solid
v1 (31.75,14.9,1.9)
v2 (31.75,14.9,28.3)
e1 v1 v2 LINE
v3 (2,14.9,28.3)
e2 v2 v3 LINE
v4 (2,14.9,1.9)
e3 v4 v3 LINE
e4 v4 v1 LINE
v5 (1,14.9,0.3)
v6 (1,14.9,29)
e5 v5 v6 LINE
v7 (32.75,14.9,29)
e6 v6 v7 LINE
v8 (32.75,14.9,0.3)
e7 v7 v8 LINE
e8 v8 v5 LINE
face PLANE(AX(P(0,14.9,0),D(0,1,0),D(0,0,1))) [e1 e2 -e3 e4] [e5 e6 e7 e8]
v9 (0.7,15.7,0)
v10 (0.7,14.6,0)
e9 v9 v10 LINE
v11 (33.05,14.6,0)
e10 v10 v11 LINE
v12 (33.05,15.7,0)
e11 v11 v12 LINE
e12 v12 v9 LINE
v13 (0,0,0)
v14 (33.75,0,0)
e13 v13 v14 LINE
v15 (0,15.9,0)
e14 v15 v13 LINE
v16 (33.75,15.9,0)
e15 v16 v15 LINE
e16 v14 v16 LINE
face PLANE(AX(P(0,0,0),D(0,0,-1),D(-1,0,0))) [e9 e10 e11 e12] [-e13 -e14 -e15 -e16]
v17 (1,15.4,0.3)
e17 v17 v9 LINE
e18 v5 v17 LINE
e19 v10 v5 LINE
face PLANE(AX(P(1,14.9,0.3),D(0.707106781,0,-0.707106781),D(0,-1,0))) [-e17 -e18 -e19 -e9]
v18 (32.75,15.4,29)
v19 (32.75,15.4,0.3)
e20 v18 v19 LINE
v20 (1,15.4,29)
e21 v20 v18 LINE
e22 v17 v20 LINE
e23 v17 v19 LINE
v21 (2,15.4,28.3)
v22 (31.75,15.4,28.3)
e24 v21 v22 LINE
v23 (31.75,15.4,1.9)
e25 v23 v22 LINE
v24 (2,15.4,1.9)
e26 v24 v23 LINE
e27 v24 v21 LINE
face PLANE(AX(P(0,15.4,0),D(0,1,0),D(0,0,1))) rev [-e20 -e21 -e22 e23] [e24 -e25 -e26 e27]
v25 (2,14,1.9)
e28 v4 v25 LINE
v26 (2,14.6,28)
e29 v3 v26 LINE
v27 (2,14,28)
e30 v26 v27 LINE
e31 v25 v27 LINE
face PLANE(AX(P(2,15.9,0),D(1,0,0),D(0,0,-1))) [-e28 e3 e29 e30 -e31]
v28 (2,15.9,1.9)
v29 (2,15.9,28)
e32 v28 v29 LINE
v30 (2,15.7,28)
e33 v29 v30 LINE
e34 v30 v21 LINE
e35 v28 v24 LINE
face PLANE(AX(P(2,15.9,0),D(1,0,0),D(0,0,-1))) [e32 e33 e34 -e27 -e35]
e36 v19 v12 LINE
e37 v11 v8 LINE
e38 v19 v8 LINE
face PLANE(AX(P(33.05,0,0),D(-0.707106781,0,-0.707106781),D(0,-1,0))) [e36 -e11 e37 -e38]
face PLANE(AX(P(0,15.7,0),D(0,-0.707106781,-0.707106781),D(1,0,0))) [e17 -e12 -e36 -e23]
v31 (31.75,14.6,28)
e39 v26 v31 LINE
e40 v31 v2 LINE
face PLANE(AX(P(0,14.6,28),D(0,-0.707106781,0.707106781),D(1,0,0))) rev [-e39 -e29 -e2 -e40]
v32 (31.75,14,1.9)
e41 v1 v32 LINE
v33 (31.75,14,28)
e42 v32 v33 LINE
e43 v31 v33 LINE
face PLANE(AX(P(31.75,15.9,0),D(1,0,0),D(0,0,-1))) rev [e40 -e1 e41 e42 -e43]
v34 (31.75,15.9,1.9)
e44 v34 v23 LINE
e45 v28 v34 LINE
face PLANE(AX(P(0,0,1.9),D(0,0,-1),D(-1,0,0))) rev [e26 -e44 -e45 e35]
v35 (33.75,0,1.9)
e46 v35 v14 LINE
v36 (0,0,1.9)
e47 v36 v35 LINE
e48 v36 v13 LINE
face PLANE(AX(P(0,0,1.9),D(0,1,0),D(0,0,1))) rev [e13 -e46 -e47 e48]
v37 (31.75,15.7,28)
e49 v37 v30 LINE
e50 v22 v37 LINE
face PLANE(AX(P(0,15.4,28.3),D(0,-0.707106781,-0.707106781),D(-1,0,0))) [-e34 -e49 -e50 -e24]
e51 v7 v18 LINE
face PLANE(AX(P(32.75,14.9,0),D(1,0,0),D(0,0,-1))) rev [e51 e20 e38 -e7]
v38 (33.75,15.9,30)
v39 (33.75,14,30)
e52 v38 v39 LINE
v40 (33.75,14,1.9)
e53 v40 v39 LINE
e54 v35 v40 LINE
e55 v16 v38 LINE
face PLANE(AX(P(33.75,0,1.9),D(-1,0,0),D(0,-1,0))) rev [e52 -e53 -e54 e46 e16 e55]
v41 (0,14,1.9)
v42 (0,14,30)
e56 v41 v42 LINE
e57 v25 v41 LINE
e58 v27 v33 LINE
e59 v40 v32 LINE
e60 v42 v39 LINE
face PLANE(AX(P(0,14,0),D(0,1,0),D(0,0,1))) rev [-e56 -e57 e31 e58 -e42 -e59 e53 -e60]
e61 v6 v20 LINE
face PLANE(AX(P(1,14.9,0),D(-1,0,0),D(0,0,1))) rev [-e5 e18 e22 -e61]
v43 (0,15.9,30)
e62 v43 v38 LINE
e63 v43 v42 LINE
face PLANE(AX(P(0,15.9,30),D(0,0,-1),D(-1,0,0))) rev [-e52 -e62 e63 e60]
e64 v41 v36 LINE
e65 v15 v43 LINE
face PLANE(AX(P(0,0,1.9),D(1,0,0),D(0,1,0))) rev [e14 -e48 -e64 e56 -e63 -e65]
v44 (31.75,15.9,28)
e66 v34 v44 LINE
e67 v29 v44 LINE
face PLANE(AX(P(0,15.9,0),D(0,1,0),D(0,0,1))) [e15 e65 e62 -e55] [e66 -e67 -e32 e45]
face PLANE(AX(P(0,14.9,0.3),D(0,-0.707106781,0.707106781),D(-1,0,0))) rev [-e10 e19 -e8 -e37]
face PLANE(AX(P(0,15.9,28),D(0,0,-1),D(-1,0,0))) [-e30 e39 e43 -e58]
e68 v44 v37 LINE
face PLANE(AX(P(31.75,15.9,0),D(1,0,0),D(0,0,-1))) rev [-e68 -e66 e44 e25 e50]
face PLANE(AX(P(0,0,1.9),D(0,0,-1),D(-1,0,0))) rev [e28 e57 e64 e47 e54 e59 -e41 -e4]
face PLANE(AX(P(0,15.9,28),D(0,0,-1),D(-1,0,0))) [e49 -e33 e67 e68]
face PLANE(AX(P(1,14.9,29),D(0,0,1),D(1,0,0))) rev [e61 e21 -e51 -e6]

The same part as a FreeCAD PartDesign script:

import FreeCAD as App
import Part
import Sketcher
from FreeCAD import Vector
Q = App.Units.Quantity


def edges_at(feature, points):
    """Names of the edges that pass closest to the given points."""
    edges = feature.Shape.Edges
    near = lambda p: min(range(len(edges)), key=lambda i: edges[i].distToShape(Part.Vertex(*p))[0])
    return sorted({f"Edge{near(p) + 1}" for p in points})

doc = App.newDocument("Part")
body = doc.addObject("PartDesign::Body", "Body")

# Sketch on XY plane
sketch1 = doc.addObject("Sketcher::SketchObject", "Sketch")
body.addObject(sketch1)
sketch1.AttachmentSupport = (doc.XY_Plane, [""])
sketch1.MapMode = "FlatFace"
sketch1.addGeometry(Part.LineSegment(Vector(0, 14, 0), Vector(0, 0, 0)), False)
sketch1.addGeometry(Part.LineSegment(Vector(0, 0, 0), Vector(34, 0, 0)), False)
sketch1.addGeometry(Part.LineSegment(Vector(34, 0, 0), Vector(34, 14, 0)), False)
sketch1.addGeometry(Part.LineSegment(Vector(34, 14, 0), Vector(0, 14, 0)), False)
sketch1.addConstraint(Sketcher.Constraint("Coincident", 0, 2, 1, 1))
sketch1.addConstraint(Sketcher.Constraint("Coincident", 1, 2, 2, 1))
sketch1.addConstraint(Sketcher.Constraint("Coincident", 2, 2, 3, 1))
sketch1.addConstraint(Sketcher.Constraint("Coincident", 3, 2, 0, 1))
sketch1.addConstraint(Sketcher.Constraint("Vertical", 0))
sketch1.addConstraint(Sketcher.Constraint("Horizontal", 1))
sketch1.addConstraint(Sketcher.Constraint("Vertical", 2))
sketch1.addConstraint(Sketcher.Constraint("Horizontal", 3))
sketch1.addConstraint(Sketcher.Constraint("Coincident", 0, 2, -1, 1))
sketch1.addConstraint(Sketcher.Constraint("DistanceY", 0, 2, 0, 1, Q("14 mm")))
sketch1.addConstraint(Sketcher.Constraint("DistanceX", 1, 1, 1, 2, Q("33.75 mm")))
pad1 = doc.addObject("PartDesign::Pad", "Pad")
body.addObject(pad1)
pad1.Profile = sketch1
pad1.Length = 1.9

# Sketch on XZ plane
sketch2 = doc.addObject("Sketcher::SketchObject", "Sketch001")
body.addObject(sketch2)
sketch2.AttachmentSupport = (doc.XZ_Plane, [""])
sketch2.MapMode = "FlatFace"
sketch2.AttachmentOffset = App.Placement(Vector(0, 0, -14), App.Rotation())
sketch2.addGeometry(Part.LineSegment(Vector(0, 0, 0), Vector(0, 30, 0)), False)
sketch2.addGeometry(Part.LineSegment(Vector(0, 30, 0), Vector(34, 30, 0)), False)
sketch2.addGeometry(Part.LineSegment(Vector(34, 30, 0), Vector(34, 0, 0)), False)
sketch2.addGeometry(Part.LineSegment(Vector(34, 0, 0), Vector(0, 0, 0)), False)
sketch2.addGeometry(Part.LineSegment(Vector(32, 28, 0), Vector(2, 28, 0)), False)
sketch2.addGeometry(Part.LineSegment(Vector(2, 28, 0), Vector(2, 2, 0)), False)
sketch2.addGeometry(Part.LineSegment(Vector(2, 2, 0), Vector(32, 2, 0)), False)
sketch2.addGeometry(Part.LineSegment(Vector(32, 2, 0), Vector(32, 28, 0)), False)
sketch2.addConstraint(Sketcher.Constraint("Coincident", 0, 2, 1, 1))
sketch2.addConstraint(Sketcher.Constraint("Coincident", 1, 2, 2, 1))
sketch2.addConstraint(Sketcher.Constraint("Coincident", 2, 2, 3, 1))
sketch2.addConstraint(Sketcher.Constraint("Coincident", 3, 2, 0, 1))
sketch2.addConstraint(Sketcher.Constraint("Coincident", 4, 2, 5, 1))
sketch2.addConstraint(Sketcher.Constraint("Coincident", 5, 2, 6, 1))
sketch2.addConstraint(Sketcher.Constraint("Coincident", 6, 2, 7, 1))
sketch2.addConstraint(Sketcher.Constraint("Coincident", 7, 2, 4, 1))
sketch2.addConstraint(Sketcher.Constraint("Vertical", 0))
sketch2.addConstraint(Sketcher.Constraint("Horizontal", 1))
sketch2.addConstraint(Sketcher.Constraint("Vertical", 2))
sketch2.addConstraint(Sketcher.Constraint("Horizontal", 3))
sketch2.addConstraint(Sketcher.Constraint("Horizontal", 4))
sketch2.addConstraint(Sketcher.Constraint("Vertical", 5))
sketch2.addConstraint(Sketcher.Constraint("Horizontal", 6))
sketch2.addConstraint(Sketcher.Constraint("Vertical", 7))
sketch2.addConstraint(Sketcher.Constraint("Coincident", 3, 2, -1, 1))
sketch2.addConstraint(Sketcher.Constraint("DistanceY", 0, 1, 0, 2, Q("30 mm")))
sketch2.addConstraint(Sketcher.Constraint("DistanceY", 5, 2, 5, 1, Q("26.1 mm")))
sketch2.addConstraint(Sketcher.Constraint("DistanceX", -1, 1, 4, 2, Q("2 mm")))
sketch2.addConstraint(Sketcher.Constraint("DistanceY", -1, 1, 4, 2, Q("28 mm")))
sketch2.addConstraint(Sketcher.Constraint("DistanceX", 6, 2, 2, 2, Q("2 mm")))
sketch2.addConstraint(Sketcher.Constraint("DistanceX", 1, 1, 1, 2, Q("33.75 mm")))
pad2 = doc.addObject("PartDesign::Pad", "Pad001")
body.addObject(pad2)
pad2.Profile = sketch2
pad2.Length = 1.9
pad2.Reversed = True

# Sketch on XZ plane
sketch3 = doc.addObject("Sketcher::SketchObject", "Sketch002")
body.addObject(sketch3)
sketch3.AttachmentSupport = (doc.XZ_Plane, [""])
sketch3.MapMode = "FlatFace"
sketch3.AttachmentOffset = App.Placement(Vector(0, 0, -15.4), App.Rotation())
sketch3.addGeometry(Part.LineSegment(Vector(1, 0, 0), Vector(1, 29, 0)), False)
sketch3.addGeometry(Part.LineSegment(Vector(1, 29, 0), Vector(33, 29, 0)), False)
sketch3.addGeometry(Part.LineSegment(Vector(33, 29, 0), Vector(33, 0, 0)), False)
sketch3.addGeometry(Part.LineSegment(Vector(33, 0, 0), Vector(1, 0, 0)), False)
sketch3.addConstraint(Sketcher.Constraint("Coincident", 0, 2, 1, 1))
sketch3.addConstraint(Sketcher.Constraint("Coincident", 1, 2, 2, 1))
sketch3.addConstraint(Sketcher.Constraint("Coincident", 2, 2, 3, 1))
sketch3.addConstraint(Sketcher.Constraint("Coincident", 3, 2, 0, 1))
sketch3.addConstraint(Sketcher.Constraint("Vertical", 0))
sketch3.addConstraint(Sketcher.Constraint("Horizontal", 1))
sketch3.addConstraint(Sketcher.Constraint("Vertical", 2))
sketch3.addConstraint(Sketcher.Constraint("Horizontal", 3))
sketch3.addConstraint(Sketcher.Constraint("PointOnObject", 2, 2, -1))
sketch3.addConstraint(Sketcher.Constraint("DistanceY", 0, 1, 0, 2, Q("29 mm")))
sketch3.addConstraint(Sketcher.Constraint("DistanceX", -1, 1, 0, 2, Q("1 mm")))
sketch3.addConstraint(Sketcher.Constraint("DistanceX", 1, 1, 1, 2, Q("31.75 mm")))
pocket1 = doc.addObject("PartDesign::Pocket", "Pocket")
body.addObject(pocket1)
pocket1.Profile = sketch3
pocket1.Length = 0.5
pocket1.Reversed = True
doc.recompute()

chamfer = doc.addObject("PartDesign::Chamfer", "Chamfer")
body.addObject(chamfer)
chamfer.Base = (pocket1, edges_at(pocket1, [
    (16.875, 14.9, 28),
    (16.875, 15.4, 0),
    (16.875, 14.9, 0),
    (1, 15.15, 0),
    (32.75, 15.15, 0),
    (16.875, 15.4, 28),
]))
chamfer.Size = 0.3

doc.recompute()
